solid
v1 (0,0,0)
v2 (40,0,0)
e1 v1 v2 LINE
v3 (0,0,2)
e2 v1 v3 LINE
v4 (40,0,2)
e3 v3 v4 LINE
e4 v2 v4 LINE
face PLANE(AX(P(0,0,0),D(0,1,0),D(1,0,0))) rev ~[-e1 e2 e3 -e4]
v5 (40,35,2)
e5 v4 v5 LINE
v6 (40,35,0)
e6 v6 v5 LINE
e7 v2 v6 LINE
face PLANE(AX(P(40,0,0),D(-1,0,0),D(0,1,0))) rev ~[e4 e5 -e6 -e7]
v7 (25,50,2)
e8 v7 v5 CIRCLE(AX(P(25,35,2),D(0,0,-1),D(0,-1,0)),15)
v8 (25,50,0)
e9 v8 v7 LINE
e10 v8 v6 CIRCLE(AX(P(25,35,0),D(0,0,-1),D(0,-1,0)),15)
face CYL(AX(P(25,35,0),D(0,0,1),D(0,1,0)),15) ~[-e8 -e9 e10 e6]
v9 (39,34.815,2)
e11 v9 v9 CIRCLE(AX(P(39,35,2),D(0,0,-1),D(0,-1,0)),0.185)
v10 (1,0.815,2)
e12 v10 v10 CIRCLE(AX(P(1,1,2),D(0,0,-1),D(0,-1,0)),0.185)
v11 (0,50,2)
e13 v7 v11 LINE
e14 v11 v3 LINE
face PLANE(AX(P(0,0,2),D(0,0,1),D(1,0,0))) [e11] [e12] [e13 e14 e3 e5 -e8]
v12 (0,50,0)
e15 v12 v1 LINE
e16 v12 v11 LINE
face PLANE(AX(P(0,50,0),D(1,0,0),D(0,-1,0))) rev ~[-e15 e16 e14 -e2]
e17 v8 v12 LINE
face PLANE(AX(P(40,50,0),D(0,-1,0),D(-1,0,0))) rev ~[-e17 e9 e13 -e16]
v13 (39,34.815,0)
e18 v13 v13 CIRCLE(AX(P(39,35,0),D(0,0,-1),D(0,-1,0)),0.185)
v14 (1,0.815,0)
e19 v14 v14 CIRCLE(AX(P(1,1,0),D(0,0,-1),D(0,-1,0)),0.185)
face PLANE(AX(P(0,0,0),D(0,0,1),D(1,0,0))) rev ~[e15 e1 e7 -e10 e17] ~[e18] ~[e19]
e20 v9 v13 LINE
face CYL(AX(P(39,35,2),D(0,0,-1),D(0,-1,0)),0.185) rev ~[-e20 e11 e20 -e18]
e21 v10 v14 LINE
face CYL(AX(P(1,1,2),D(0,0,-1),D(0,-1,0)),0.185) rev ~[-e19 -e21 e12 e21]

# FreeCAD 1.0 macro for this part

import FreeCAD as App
import Part
import Sketcher
Q = App.Units.Quantity


def edges_at(feature, points):
    """Names of the edges that pass closest to the given points."""
    edges = feature.Shape.Edges
    near = lambda p: min(range(len(edges)), key=lambda i: edges[i].distToShape(Part.Vertex(*p))[0])
    return sorted({f"Edge{near(p) + 1}" for p in points})


def add_polygon(sketch, points):
    """Adds a closed chain of lines whose ends are joined by coincident constraints."""
    first, n = sketch.GeometryCount, len(points)
    for a, b in zip(points, points[1:] + points[:1]):
        sketch.addGeometry(Part.LineSegment(App.Vector(*a, 0), App.Vector(*b, 0)), False)
    for i in range(n):
        sketch.addConstraint(Sketcher.Constraint("Coincident", first + i, 2, first + (i + 1) % n, 1))

doc = App.newDocument("Part")
body = doc.addObject("PartDesign::Body", "Body")

# Sketch on XY plane
sketch1 = body.newObject("Sketcher::SketchObject", "Sketch")
sketch1.AttachmentSupport = (doc.getObject("XY_Plane"), [""])
sketch1.MapMode = "FlatFace"
add_polygon(sketch1, [(0, 50), (0, 0), (40, 0), (40, 50)])  # lines 0-3
sketch1.addConstraint([
    Sketcher.Constraint("Vertical", 0),
    Sketcher.Constraint("Horizontal", 1),
    Sketcher.Constraint("Vertical", 2),
    Sketcher.Constraint("Horizontal", 3),
    Sketcher.Constraint("Coincident", 0, 2, -1, 1),
    Sketcher.Constraint("DistanceX", 1, 1, 1, 2, Q("40 mm")),
    Sketcher.Constraint("DistanceY", 0, 2, 0, 1, Q("50 mm")),
])
pad1 = body.newObject("PartDesign::Pad", "Pad")
pad1.Profile = sketch1
pad1.Length = 2
doc.recompute()

fillet = body.newObject("PartDesign::Fillet", "Fillet")
fillet.Base = (pad1, edges_at(pad1, [(40, 50, 1)]))
fillet.Radius = 15

# Sketch on XY plane
sketch2 = body.newObject("Sketcher::SketchObject", "Sketch001")
sketch2.AttachmentSupport = (doc.getObject("XY_Plane"), [""])
sketch2.MapMode = "FlatFace"
sketch2.AttachmentOffset = App.Placement(App.Vector(0, 0, 2), App.Rotation())
sketch2.addGeometry(Part.Circle(App.Vector(1, 1, 0), App.Vector(0, 0, 1), 0.185), False)
sketch2.addConstraint([
    Sketcher.Constraint("Diameter", 0, Q("0.37 mm")),
    Sketcher.Constraint("DistanceX", -1, 1, 0, 3, Q("1 mm")),
    Sketcher.Constraint("DistanceY", -1, 1, 0, 3, Q("1 mm")),
])
doc.recompute()
hole = body.newObject("PartDesign::Hole", "Hole")
hole.Profile = sketch2
hole.ThreadType = "None"
hole.Diameter = 0.37
hole.DepthType = "ThroughAll"

# Sketch on XY plane
sketch3 = body.newObject("Sketcher::SketchObject", "Sketch002")
sketch3.AttachmentSupport = (doc.getObject("XY_Plane"), [""])
sketch3.MapMode = "FlatFace"
sketch3.AttachmentOffset = App.Placement(App.Vector(0, 0, 2), App.Rotation())
sketch3.addGeometry(Part.Circle(App.Vector(39, 35, 0), App.Vector(0, 0, 1), 0.185), False)
sketch3.addConstraint([
    Sketcher.Constraint("Diameter", 0, Q("0.37 mm")),
    Sketcher.Constraint("DistanceX", -1, 1, 0, 3, Q("39 mm")),
    Sketcher.Constraint("DistanceY", -1, 1, 0, 3, Q("35 mm")),
])
doc.recompute()
hole2 = body.newObject("PartDesign::Hole", "Hole001")
hole2.Profile = sketch3
hole2.ThreadType = "None"
hole2.Diameter = 0.37
hole2.DepthType = "ThroughAll"

doc.recompute()
